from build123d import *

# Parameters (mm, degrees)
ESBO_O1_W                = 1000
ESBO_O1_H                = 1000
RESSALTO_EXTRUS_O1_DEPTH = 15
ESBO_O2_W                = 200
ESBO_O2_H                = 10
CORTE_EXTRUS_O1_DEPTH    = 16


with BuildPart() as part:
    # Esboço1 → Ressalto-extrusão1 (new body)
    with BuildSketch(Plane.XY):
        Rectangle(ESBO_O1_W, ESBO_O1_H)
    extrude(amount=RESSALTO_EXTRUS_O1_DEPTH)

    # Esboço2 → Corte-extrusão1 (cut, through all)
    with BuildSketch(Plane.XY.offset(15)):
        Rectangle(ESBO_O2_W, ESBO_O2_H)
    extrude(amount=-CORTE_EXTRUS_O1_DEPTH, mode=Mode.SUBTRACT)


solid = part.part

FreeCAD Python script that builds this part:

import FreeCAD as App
import Part
import Sketcher
from FreeCAD import Vector
Q = App.Units.Quantity


def add_polygon(sketch, points):
    """Adds a closed chain of lines whose ends are joined by coincident constraints."""
    first, n = sketch.GeometryCount, len(points)
    for a, b in zip(points, points[1:] + points[:1]):
        sketch.addGeometry(Part.LineSegment(App.Vector(*a, 0), App.Vector(*b, 0)), False)
    for i in range(n):
        sketch.addConstraint(Sketcher.Constraint("Coincident", first + i, 2, first + (i + 1) % n, 1))

doc = App.newDocument("Part")
body = doc.addObject("PartDesign::Body", "Body")

sketch1 = body.newObject("Sketcher::SketchObject", "Sketch")
sketch1.AttachmentSupport = (doc.getObject("XY_Plane"), [""])
sketch1.MapMode = "FlatFace"
add_polygon(sketch1, [(-500, 500), (-500, -500), (500, -500), (500, 500)])
sketch1.addConstraint(Sketcher.Constraint("Vertical", 0))
sketch1.addConstraint(Sketcher.Constraint("Horizontal", 1))
sketch1.addConstraint(Sketcher.Constraint("Vertical", 2))
sketch1.addConstraint(Sketcher.Constraint("Horizontal", 3))
sketch1.addConstraint(Sketcher.Constraint("Symmetric", 0, 2, 2, 2, -1, 1))
sketch1.addConstraint(Sketcher.Constraint("Equal", 3, 0))
sketch1.addConstraint(Sketcher.Constraint("DistanceX", 1, 1, 1, 2, Q("1000 mm")))
pad1 = body.newObject("PartDesign::Pad", "Pad")
pad1.Profile = sketch1
pad1.Length = 15

sketch2 = body.newObject("Sketcher::SketchObject", "Sketch001")
sketch2.AttachmentSupport = (doc.getObject("XY_Plane"), [""])
sketch2.MapMode = "FlatFace"
sketch2.AttachmentOffset = App.Placement(Vector(0, 0, 15), App.Rotation())
add_polygon(sketch2, [(-100, 5), (-100, -5), (100, -5), (100, 5)])
sketch2.addConstraint(Sketcher.Constraint("Vertical", 0))
sketch2.addConstraint(Sketcher.Constraint("Horizontal", 1))
sketch2.addConstraint(Sketcher.Constraint("Vertical", 2))
sketch2.addConstraint(Sketcher.Constraint("Horizontal", 3))
sketch2.addConstraint(Sketcher.Constraint("Symmetric", 0, 2, 2, 2, -1, 1))
sketch2.addConstraint(Sketcher.Constraint("DistanceX", 1, 1, 1, 2, Q("200 mm")))
sketch2.addConstraint(Sketcher.Constraint("DistanceY", 0, 2, 0, 1, Q("10 mm")))
pocket1 = body.newObject("PartDesign::Pocket", "Pocket")
pocket1.Profile = sketch2
pocket1.Type = "ThroughAll"

doc.recompute()
